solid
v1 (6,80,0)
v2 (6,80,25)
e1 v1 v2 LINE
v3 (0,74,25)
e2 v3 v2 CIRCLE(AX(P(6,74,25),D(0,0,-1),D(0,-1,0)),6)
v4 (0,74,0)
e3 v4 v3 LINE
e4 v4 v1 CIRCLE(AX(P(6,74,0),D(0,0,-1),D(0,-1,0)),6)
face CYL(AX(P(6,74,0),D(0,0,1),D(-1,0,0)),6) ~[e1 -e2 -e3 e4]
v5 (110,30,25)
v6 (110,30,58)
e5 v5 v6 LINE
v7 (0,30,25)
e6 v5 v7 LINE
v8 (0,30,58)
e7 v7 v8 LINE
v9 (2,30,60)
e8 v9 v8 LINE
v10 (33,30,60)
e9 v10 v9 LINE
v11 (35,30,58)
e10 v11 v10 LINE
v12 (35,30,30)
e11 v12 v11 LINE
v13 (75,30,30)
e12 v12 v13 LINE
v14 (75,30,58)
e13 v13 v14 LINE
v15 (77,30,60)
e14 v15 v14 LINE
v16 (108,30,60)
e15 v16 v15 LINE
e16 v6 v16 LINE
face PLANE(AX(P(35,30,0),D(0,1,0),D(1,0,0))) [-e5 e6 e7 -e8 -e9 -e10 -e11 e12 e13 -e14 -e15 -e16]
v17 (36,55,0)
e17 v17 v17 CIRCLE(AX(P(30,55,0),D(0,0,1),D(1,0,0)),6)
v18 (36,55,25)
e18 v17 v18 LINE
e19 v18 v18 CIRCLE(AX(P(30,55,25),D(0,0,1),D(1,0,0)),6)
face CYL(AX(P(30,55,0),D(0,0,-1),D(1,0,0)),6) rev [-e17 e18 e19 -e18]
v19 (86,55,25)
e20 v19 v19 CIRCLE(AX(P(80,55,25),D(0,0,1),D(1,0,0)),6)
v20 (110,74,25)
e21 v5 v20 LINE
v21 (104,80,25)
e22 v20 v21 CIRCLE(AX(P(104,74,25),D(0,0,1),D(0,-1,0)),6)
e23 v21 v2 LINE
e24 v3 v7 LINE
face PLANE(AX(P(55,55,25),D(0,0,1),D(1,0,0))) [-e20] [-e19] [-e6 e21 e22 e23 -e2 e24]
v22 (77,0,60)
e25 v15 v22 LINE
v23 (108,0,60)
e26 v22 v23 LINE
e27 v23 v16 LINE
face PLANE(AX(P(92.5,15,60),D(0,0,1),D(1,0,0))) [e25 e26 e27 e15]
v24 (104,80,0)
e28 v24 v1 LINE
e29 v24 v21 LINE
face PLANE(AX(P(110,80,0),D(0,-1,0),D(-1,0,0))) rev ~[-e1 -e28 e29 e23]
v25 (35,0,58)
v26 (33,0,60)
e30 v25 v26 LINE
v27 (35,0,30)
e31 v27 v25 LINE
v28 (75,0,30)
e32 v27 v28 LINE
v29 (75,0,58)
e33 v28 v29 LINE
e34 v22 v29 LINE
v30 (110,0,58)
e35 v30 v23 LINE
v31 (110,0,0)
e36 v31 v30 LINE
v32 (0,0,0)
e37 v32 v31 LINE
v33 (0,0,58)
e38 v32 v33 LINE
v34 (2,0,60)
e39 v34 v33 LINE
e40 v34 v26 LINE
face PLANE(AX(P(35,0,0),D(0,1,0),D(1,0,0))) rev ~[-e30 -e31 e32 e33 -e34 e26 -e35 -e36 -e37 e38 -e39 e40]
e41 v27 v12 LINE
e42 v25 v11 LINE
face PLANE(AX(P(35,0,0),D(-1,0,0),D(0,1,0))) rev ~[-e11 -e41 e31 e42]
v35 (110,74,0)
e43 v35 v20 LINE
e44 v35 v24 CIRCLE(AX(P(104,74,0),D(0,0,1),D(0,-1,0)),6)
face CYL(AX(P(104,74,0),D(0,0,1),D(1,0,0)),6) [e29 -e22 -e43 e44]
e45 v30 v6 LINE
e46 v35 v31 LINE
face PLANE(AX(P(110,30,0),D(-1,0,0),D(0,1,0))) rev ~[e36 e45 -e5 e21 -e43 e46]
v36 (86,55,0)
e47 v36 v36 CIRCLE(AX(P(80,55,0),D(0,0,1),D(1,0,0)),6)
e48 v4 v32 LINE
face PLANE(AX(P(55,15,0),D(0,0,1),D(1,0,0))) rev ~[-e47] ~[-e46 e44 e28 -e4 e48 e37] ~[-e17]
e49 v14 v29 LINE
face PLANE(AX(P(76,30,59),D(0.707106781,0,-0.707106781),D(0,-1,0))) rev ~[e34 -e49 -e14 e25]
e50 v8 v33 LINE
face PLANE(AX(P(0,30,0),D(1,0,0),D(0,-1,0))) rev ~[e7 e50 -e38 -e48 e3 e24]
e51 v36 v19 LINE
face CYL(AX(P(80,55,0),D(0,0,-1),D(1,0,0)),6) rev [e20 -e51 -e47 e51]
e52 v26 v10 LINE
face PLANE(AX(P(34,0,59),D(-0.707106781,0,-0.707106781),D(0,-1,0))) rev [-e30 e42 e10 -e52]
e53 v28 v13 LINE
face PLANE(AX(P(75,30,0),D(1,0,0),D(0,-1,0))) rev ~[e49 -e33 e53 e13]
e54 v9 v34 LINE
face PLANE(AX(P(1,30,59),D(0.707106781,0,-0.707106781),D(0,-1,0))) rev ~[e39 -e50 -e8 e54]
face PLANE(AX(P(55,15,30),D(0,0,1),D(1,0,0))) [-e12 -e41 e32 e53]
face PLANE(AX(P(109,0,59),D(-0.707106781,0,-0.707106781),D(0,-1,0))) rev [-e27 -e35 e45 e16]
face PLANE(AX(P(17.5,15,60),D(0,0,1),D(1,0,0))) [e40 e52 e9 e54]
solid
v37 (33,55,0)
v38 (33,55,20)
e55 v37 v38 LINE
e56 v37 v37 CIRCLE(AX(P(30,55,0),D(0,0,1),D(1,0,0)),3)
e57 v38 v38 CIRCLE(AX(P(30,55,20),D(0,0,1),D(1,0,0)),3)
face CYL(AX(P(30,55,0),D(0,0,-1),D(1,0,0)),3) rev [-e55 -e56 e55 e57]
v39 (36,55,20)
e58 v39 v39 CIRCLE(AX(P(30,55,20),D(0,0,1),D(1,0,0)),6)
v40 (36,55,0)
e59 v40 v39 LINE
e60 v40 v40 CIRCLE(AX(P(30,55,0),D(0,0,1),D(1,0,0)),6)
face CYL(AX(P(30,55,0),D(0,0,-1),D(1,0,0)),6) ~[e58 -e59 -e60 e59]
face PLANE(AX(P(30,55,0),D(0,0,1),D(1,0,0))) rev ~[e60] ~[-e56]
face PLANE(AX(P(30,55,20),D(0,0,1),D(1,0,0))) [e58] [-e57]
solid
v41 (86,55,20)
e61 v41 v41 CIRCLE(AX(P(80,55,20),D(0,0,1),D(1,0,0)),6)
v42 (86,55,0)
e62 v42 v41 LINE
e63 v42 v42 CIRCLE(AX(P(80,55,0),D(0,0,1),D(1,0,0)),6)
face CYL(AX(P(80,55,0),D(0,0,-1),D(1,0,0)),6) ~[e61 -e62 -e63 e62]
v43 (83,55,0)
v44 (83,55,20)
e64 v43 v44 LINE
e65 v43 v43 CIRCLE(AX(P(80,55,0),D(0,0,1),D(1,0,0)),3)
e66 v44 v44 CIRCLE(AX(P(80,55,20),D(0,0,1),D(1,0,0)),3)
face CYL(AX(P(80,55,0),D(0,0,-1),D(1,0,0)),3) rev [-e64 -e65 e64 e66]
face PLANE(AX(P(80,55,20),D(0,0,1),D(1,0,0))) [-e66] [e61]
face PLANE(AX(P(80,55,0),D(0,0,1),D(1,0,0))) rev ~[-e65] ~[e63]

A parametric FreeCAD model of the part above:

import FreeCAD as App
import Part
import Sketcher


def edges_at(feature, points):
    """Names of the edges that pass closest to the given points."""
    edges = feature.Shape.Edges
    near = lambda p: min(range(len(edges)), key=lambda i: edges[i].distToShape(Part.Vertex(*p))[0])
    return sorted({f"Edge{near(p) + 1}" for p in points})

doc = App.newDocument("Part")
body = doc.addObject("PartDesign::Body", "Body")

# Sketch on XY plane
sketch1 = body.newObject("Sketcher::SketchObject", "Sketch")
sketch1.AttachmentSupport = (doc.getObject("XY_Plane"), [""])
sketch1.MapMode = "FlatFace"
sketch1.addGeometry([
    Part.Circle(App.Vector(30, 55, 0), App.Vector(0, 0, 1), 6),
    Part.Circle(App.Vector(30, 55, 0), App.Vector(0, 0, 1), 3),
], False)
sketch1.addConstraint([
    Sketcher.Constraint("Coincident", 1, 3, 0, 3),
    Sketcher.Constraint("Diameter", 0, 12.0),
    Sketcher.Constraint("Diameter", 1, 6.0),
    Sketcher.Constraint("DistanceX", -1, 1, 0, 3, 30.0),
    Sketcher.Constraint("DistanceY", -1, 1, 0, 3, 55.0),
])
pad1 = body.newObject("PartDesign::Pad", "Pad")
pad1.Profile = sketch1
pad1.Length = 20
body2 = doc.addObject("PartDesign::Body", "Body001")

# Sketch on XY plane
sketch2 = body2.newObject("Sketcher::SketchObject", "Sketch001")
sketch2.AttachmentSupport = (doc.getObject("XY_Plane001"), [""])
sketch2.MapMode = "FlatFace"
sketch2.addGeometry([
    Part.Circle(App.Vector(80, 55, 0), App.Vector(0, 0, 1), 6),
    Part.Circle(App.Vector(80, 55, 0), App.Vector(0, 0, 1), 3),
], False)
sketch2.addConstraint([
    Sketcher.Constraint("Coincident", 1, 3, 0, 3),
    Sketcher.Constraint("Diameter", 0, 12.0),
    Sketcher.Constraint("Diameter", 1, 6.0),
    Sketcher.Constraint("DistanceX", -1, 1, 0, 3, 80.0),
    Sketcher.Constraint("DistanceY", -1, 1, 0, 3, 55.0),
])
pad2 = body2.newObject("PartDesign::Pad", "Pad001")
pad2.Profile = sketch2
pad2.Length = 20
body3 = doc.addObject("PartDesign::Body", "Body002")

# Sketch on XY plane
sketch3 = body3.newObject("Sketcher::SketchObject", "Sketch002")
sketch3.AttachmentSupport = (doc.getObject("XY_Plane002"), [""])
sketch3.MapMode = "FlatFace"
sketch3.addGeometry([
    Part.LineSegment(App.Vector(0, 30, 0), App.Vector(110, 30, 0)),  # 0
    Part.LineSegment(App.Vector(110, 30, 0), App.Vector(110, 80, 0)),  # 1
    Part.LineSegment(App.Vector(110, 80, 0), App.Vector(0, 80, 0)),  # 2
    Part.LineSegment(App.Vector(0, 80, 0), App.Vector(0, 30, 0)),  # 3
    Part.Circle(App.Vector(30, 55, 0), App.Vector(0, 0, 1), 6),  # 4
    Part.Circle(App.Vector(80, 55, 0), App.Vector(0, 0, 1), 6),  # 5
], False)
sketch3.addConstraint([
    Sketcher.Constraint("Coincident", 0, 2, 1, 1),
    Sketcher.Constraint("Coincident", 1, 2, 2, 1),
    Sketcher.Constraint("Coincident", 2, 2, 3, 1),
    Sketcher.Constraint("Coincident", 3, 2, 0, 1),
    Sketcher.Constraint("Horizontal", 0),
    Sketcher.Constraint("Vertical", 1),
    Sketcher.Constraint("Horizontal", 2),
    Sketcher.Constraint("Vertical", 3),
    Sketcher.Constraint("Equal", 4, 5),
    Sketcher.Constraint("PointOnObject", 2, 2, -2),
    Sketcher.Constraint("Horizontal", 4, 3, 5, 3),
    Sketcher.Constraint("Diameter", 4, 12.0),
    Sketcher.Constraint("DistanceX", 0, 1, 0, 2, 110.0),
    Sketcher.Constraint("DistanceY", 1, 1, 1, 2, 50.0),
    Sketcher.Constraint("DistanceX", -1, 1, 4, 3, 30.0),
    Sketcher.Constraint("DistanceY", -1, 1, 4, 3, 55.0),
    Sketcher.Constraint("DistanceX", -1, 1, 5, 3, 80.0),
    Sketcher.Constraint("DistanceY", -1, 1, 0, 2, 30.0),
])
pad3 = body3.newObject("PartDesign::Pad", "Pad002")
pad3.Profile = sketch3
pad3.Length = 25

# Sketch on XY plane
sketch4 = body3.newObject("Sketcher::SketchObject", "Sketch003")
sketch4.AttachmentSupport = (doc.getObject("XY_Plane002"), [""])
sketch4.MapMode = "FlatFace"
sketch4.addGeometry([
    Part.LineSegment(App.Vector(0, 0, 0), App.Vector(35, 0, 0)),  # 0
    Part.LineSegment(App.Vector(35, 0, 0), App.Vector(35, 30, 0)),  # 1
    Part.LineSegment(App.Vector(35, 30, 0), App.Vector(0, 30, 0)),  # 2
    Part.LineSegment(App.Vector(0, 30, 0), App.Vector(0, 0, 0)),  # 3
    Part.LineSegment(App.Vector(75, 30, 0), App.Vector(75, 0, 0)),  # 4
    Part.LineSegment(App.Vector(75, 0, 0), App.Vector(110, 0, 0)),  # 5
    Part.LineSegment(App.Vector(110, 0, 0), App.Vector(110, 30, 0)),  # 6
    Part.LineSegment(App.Vector(110, 30, 0), App.Vector(75, 30, 0)),  # 7
], False)
sketch4.addConstraint([
    Sketcher.Constraint("Coincident", 0, 2, 1, 1),
    Sketcher.Constraint("Coincident", 1, 2, 2, 1),
    Sketcher.Constraint("Coincident", 2, 2, 3, 1),
    Sketcher.Constraint("Coincident", 3, 2, 0, 1),
    Sketcher.Constraint("Coincident", 4, 2, 5, 1),
    Sketcher.Constraint("Coincident", 5, 2, 6, 1),
    Sketcher.Constraint("Coincident", 6, 2, 7, 1),
    Sketcher.Constraint("Coincident", 7, 2, 4, 1),
    Sketcher.Constraint("Horizontal", 0),
    Sketcher.Constraint("Vertical", 1),
    Sketcher.Constraint("Horizontal", 2),
    Sketcher.Constraint("Vertical", 3),
    Sketcher.Constraint("Vertical", 4),
    Sketcher.Constraint("Horizontal", 5),
    Sketcher.Constraint("Vertical", 6),
    Sketcher.Constraint("Horizontal", 7),
    Sketcher.Constraint("Coincident", 3, 2, -1, 1),
    Sketcher.Constraint("PointOnObject", 4, 2, -1),
    Sketcher.Constraint("Horizontal", 2, 2, 6, 2),
    Sketcher.Constraint("Equal", 2, 5),
    Sketcher.Constraint("DistanceX", 0, 1, 0, 2, 35.0),
    Sketcher.Constraint("DistanceY", 1, 1, 1, 2, 30.0),
    Sketcher.Constraint("DistanceX", -1, 1, 4, 2, 75.0),
])
pad4 = body3.newObject("PartDesign::Pad", "Pad003")
pad4.Profile = sketch4
pad4.Length = 60

# Sketch on XY plane
sketch5 = body3.newObject("Sketcher::SketchObject", "Sketch004")
sketch5.AttachmentSupport = (doc.getObject("XY_Plane002"), [""])
sketch5.MapMode = "FlatFace"
sketch5.addGeometry([
    Part.LineSegment(App.Vector(35, 30, 0), App.Vector(35, 0, 0)),
    Part.LineSegment(App.Vector(35, 0, 0), App.Vector(75, 0, 0)),
    Part.LineSegment(App.Vector(75, 0, 0), App.Vector(75, 30, 0)),
    Part.LineSegment(App.Vector(75, 30, 0), App.Vector(35, 30, 0)),
], False)
sketch5.addConstraint([
    Sketcher.Constraint("Coincident", 0, 2, 1, 1),
    Sketcher.Constraint("Coincident", 1, 2, 2, 1),
    Sketcher.Constraint("Coincident", 2, 2, 3, 1),
    Sketcher.Constraint("Coincident", 3, 2, 0, 1),
    Sketcher.Constraint("Vertical", 0),
    Sketcher.Constraint("Horizontal", 1),
    Sketcher.Constraint("Vertical", 2),
    Sketcher.Constraint("Horizontal", 3),
    Sketcher.Constraint("PointOnObject", 0, 2, -1),
    Sketcher.Constraint("DistanceX", 1, 1, 1, 2, 40.0),
    Sketcher.Constraint("DistanceY", 0, 2, 0, 1, 30.0),
    Sketcher.Constraint("DistanceX", -1, 1, 0, 2, 35.0),
])
pad5 = body3.newObject("PartDesign::Pad", "Pad004")
pad5.Profile = sketch5
pad5.Length = 30
doc.recompute()

chamfer = body3.newObject("PartDesign::Chamfer", "Chamfer")
chamfer.Base = (pad5, edges_at(pad5, [
    (110, 15, 60),
    (75, 15, 60),
    (35, 15, 60),
    (0, 15, 60),
]))
chamfer.Size = 2
doc.recompute()

fillet = body3.newObject("PartDesign::Fillet", "Fillet")
fillet.Base = (chamfer, edges_at(chamfer, [(0, 80, 12.5), (110, 80, 12.5)]))
fillet.Radius = 6

doc.recompute()
